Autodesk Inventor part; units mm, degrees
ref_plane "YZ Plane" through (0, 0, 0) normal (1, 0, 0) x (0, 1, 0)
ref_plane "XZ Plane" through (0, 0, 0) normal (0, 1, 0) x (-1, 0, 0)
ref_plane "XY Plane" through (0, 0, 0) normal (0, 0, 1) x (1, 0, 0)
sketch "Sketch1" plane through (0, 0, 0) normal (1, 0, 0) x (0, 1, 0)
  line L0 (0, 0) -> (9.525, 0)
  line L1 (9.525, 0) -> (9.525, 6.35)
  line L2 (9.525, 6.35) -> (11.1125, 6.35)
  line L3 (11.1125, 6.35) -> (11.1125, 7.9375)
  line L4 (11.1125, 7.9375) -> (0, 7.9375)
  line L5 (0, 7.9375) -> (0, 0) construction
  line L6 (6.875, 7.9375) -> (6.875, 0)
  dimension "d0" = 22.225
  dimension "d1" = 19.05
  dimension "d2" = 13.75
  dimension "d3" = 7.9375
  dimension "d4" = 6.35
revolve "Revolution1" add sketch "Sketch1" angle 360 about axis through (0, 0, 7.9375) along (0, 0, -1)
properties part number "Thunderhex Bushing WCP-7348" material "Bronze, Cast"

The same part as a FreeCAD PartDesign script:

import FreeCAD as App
import Part
import Sketcher

V = App.Vector
Q = App.Units.Quantity

doc = App.newDocument("Part")
body = doc.addObject("PartDesign::Body", "Body")

# Sketch on YZ plane
sketch1 = doc.addObject("Sketcher::SketchObject", "Sketch")
body.addObject(sketch1)
sketch1.AttachmentSupport = (doc.YZ_Plane, [""])
sketch1.MapMode = "FlatFace"
sketch1.addGeometry([
    Part.LineSegment(V(6.9, 7.9, 0), V(6.9, 0, 0)),  # 0
    Part.LineSegment(V(6.9, 0, 0), V(9.5, 0, 0)),  # 1
    Part.LineSegment(V(9.5, 0, 0), V(9.5, 6.3, 0)),  # 2
    Part.LineSegment(V(9.5, 6.3, 0), V(11.1, 6.3, 0)),  # 3
    Part.LineSegment(V(11.1, 6.3, 0), V(11.1, 7.9, 0)),  # 4
    Part.LineSegment(V(11.1, 7.9, 0), V(6.9, 7.9, 0)),  # 5
], False)
sketch1.addConstraint([
    Sketcher.Constraint("Coincident", 0, 2, 1, 1),
    Sketcher.Constraint("Coincident", 1, 2, 2, 1),
    Sketcher.Constraint("Coincident", 2, 2, 3, 1),
    Sketcher.Constraint("Coincident", 3, 2, 4, 1),
    Sketcher.Constraint("Coincident", 4, 2, 5, 1),
    Sketcher.Constraint("Coincident", 5, 2, 0, 1),
    Sketcher.Constraint("Vertical", 0),
    Sketcher.Constraint("Horizontal", 1),
    Sketcher.Constraint("Vertical", 2),
    Sketcher.Constraint("Horizontal", 3),
    Sketcher.Constraint("Vertical", 4),
    Sketcher.Constraint("Horizontal", 5),
    Sketcher.Constraint("PointOnObject", 0, 2, -1),
    Sketcher.Constraint("Equal", 3, 4),
    Sketcher.Constraint("DistanceY", 2, 1, 2, 2, Q("0.25 in")),
    Sketcher.Constraint("DistanceY", 0, 2, 0, 1, Q("0.3125 in")),
    Sketcher.Constraint("DistanceX", -1, 1, 1, 2, Q("0.375 in")),
    Sketcher.Constraint("DistanceX", 1, 1, 1, 2, Q("2.65 mm")),
])
revolution = doc.addObject("PartDesign::Revolution", "Revolution")
body.addObject(revolution)
revolution.Profile = sketch1
revolution.ReferenceAxis = (sketch1, ["V_Axis"])
revolution.Angle = 360

doc.recompute()
